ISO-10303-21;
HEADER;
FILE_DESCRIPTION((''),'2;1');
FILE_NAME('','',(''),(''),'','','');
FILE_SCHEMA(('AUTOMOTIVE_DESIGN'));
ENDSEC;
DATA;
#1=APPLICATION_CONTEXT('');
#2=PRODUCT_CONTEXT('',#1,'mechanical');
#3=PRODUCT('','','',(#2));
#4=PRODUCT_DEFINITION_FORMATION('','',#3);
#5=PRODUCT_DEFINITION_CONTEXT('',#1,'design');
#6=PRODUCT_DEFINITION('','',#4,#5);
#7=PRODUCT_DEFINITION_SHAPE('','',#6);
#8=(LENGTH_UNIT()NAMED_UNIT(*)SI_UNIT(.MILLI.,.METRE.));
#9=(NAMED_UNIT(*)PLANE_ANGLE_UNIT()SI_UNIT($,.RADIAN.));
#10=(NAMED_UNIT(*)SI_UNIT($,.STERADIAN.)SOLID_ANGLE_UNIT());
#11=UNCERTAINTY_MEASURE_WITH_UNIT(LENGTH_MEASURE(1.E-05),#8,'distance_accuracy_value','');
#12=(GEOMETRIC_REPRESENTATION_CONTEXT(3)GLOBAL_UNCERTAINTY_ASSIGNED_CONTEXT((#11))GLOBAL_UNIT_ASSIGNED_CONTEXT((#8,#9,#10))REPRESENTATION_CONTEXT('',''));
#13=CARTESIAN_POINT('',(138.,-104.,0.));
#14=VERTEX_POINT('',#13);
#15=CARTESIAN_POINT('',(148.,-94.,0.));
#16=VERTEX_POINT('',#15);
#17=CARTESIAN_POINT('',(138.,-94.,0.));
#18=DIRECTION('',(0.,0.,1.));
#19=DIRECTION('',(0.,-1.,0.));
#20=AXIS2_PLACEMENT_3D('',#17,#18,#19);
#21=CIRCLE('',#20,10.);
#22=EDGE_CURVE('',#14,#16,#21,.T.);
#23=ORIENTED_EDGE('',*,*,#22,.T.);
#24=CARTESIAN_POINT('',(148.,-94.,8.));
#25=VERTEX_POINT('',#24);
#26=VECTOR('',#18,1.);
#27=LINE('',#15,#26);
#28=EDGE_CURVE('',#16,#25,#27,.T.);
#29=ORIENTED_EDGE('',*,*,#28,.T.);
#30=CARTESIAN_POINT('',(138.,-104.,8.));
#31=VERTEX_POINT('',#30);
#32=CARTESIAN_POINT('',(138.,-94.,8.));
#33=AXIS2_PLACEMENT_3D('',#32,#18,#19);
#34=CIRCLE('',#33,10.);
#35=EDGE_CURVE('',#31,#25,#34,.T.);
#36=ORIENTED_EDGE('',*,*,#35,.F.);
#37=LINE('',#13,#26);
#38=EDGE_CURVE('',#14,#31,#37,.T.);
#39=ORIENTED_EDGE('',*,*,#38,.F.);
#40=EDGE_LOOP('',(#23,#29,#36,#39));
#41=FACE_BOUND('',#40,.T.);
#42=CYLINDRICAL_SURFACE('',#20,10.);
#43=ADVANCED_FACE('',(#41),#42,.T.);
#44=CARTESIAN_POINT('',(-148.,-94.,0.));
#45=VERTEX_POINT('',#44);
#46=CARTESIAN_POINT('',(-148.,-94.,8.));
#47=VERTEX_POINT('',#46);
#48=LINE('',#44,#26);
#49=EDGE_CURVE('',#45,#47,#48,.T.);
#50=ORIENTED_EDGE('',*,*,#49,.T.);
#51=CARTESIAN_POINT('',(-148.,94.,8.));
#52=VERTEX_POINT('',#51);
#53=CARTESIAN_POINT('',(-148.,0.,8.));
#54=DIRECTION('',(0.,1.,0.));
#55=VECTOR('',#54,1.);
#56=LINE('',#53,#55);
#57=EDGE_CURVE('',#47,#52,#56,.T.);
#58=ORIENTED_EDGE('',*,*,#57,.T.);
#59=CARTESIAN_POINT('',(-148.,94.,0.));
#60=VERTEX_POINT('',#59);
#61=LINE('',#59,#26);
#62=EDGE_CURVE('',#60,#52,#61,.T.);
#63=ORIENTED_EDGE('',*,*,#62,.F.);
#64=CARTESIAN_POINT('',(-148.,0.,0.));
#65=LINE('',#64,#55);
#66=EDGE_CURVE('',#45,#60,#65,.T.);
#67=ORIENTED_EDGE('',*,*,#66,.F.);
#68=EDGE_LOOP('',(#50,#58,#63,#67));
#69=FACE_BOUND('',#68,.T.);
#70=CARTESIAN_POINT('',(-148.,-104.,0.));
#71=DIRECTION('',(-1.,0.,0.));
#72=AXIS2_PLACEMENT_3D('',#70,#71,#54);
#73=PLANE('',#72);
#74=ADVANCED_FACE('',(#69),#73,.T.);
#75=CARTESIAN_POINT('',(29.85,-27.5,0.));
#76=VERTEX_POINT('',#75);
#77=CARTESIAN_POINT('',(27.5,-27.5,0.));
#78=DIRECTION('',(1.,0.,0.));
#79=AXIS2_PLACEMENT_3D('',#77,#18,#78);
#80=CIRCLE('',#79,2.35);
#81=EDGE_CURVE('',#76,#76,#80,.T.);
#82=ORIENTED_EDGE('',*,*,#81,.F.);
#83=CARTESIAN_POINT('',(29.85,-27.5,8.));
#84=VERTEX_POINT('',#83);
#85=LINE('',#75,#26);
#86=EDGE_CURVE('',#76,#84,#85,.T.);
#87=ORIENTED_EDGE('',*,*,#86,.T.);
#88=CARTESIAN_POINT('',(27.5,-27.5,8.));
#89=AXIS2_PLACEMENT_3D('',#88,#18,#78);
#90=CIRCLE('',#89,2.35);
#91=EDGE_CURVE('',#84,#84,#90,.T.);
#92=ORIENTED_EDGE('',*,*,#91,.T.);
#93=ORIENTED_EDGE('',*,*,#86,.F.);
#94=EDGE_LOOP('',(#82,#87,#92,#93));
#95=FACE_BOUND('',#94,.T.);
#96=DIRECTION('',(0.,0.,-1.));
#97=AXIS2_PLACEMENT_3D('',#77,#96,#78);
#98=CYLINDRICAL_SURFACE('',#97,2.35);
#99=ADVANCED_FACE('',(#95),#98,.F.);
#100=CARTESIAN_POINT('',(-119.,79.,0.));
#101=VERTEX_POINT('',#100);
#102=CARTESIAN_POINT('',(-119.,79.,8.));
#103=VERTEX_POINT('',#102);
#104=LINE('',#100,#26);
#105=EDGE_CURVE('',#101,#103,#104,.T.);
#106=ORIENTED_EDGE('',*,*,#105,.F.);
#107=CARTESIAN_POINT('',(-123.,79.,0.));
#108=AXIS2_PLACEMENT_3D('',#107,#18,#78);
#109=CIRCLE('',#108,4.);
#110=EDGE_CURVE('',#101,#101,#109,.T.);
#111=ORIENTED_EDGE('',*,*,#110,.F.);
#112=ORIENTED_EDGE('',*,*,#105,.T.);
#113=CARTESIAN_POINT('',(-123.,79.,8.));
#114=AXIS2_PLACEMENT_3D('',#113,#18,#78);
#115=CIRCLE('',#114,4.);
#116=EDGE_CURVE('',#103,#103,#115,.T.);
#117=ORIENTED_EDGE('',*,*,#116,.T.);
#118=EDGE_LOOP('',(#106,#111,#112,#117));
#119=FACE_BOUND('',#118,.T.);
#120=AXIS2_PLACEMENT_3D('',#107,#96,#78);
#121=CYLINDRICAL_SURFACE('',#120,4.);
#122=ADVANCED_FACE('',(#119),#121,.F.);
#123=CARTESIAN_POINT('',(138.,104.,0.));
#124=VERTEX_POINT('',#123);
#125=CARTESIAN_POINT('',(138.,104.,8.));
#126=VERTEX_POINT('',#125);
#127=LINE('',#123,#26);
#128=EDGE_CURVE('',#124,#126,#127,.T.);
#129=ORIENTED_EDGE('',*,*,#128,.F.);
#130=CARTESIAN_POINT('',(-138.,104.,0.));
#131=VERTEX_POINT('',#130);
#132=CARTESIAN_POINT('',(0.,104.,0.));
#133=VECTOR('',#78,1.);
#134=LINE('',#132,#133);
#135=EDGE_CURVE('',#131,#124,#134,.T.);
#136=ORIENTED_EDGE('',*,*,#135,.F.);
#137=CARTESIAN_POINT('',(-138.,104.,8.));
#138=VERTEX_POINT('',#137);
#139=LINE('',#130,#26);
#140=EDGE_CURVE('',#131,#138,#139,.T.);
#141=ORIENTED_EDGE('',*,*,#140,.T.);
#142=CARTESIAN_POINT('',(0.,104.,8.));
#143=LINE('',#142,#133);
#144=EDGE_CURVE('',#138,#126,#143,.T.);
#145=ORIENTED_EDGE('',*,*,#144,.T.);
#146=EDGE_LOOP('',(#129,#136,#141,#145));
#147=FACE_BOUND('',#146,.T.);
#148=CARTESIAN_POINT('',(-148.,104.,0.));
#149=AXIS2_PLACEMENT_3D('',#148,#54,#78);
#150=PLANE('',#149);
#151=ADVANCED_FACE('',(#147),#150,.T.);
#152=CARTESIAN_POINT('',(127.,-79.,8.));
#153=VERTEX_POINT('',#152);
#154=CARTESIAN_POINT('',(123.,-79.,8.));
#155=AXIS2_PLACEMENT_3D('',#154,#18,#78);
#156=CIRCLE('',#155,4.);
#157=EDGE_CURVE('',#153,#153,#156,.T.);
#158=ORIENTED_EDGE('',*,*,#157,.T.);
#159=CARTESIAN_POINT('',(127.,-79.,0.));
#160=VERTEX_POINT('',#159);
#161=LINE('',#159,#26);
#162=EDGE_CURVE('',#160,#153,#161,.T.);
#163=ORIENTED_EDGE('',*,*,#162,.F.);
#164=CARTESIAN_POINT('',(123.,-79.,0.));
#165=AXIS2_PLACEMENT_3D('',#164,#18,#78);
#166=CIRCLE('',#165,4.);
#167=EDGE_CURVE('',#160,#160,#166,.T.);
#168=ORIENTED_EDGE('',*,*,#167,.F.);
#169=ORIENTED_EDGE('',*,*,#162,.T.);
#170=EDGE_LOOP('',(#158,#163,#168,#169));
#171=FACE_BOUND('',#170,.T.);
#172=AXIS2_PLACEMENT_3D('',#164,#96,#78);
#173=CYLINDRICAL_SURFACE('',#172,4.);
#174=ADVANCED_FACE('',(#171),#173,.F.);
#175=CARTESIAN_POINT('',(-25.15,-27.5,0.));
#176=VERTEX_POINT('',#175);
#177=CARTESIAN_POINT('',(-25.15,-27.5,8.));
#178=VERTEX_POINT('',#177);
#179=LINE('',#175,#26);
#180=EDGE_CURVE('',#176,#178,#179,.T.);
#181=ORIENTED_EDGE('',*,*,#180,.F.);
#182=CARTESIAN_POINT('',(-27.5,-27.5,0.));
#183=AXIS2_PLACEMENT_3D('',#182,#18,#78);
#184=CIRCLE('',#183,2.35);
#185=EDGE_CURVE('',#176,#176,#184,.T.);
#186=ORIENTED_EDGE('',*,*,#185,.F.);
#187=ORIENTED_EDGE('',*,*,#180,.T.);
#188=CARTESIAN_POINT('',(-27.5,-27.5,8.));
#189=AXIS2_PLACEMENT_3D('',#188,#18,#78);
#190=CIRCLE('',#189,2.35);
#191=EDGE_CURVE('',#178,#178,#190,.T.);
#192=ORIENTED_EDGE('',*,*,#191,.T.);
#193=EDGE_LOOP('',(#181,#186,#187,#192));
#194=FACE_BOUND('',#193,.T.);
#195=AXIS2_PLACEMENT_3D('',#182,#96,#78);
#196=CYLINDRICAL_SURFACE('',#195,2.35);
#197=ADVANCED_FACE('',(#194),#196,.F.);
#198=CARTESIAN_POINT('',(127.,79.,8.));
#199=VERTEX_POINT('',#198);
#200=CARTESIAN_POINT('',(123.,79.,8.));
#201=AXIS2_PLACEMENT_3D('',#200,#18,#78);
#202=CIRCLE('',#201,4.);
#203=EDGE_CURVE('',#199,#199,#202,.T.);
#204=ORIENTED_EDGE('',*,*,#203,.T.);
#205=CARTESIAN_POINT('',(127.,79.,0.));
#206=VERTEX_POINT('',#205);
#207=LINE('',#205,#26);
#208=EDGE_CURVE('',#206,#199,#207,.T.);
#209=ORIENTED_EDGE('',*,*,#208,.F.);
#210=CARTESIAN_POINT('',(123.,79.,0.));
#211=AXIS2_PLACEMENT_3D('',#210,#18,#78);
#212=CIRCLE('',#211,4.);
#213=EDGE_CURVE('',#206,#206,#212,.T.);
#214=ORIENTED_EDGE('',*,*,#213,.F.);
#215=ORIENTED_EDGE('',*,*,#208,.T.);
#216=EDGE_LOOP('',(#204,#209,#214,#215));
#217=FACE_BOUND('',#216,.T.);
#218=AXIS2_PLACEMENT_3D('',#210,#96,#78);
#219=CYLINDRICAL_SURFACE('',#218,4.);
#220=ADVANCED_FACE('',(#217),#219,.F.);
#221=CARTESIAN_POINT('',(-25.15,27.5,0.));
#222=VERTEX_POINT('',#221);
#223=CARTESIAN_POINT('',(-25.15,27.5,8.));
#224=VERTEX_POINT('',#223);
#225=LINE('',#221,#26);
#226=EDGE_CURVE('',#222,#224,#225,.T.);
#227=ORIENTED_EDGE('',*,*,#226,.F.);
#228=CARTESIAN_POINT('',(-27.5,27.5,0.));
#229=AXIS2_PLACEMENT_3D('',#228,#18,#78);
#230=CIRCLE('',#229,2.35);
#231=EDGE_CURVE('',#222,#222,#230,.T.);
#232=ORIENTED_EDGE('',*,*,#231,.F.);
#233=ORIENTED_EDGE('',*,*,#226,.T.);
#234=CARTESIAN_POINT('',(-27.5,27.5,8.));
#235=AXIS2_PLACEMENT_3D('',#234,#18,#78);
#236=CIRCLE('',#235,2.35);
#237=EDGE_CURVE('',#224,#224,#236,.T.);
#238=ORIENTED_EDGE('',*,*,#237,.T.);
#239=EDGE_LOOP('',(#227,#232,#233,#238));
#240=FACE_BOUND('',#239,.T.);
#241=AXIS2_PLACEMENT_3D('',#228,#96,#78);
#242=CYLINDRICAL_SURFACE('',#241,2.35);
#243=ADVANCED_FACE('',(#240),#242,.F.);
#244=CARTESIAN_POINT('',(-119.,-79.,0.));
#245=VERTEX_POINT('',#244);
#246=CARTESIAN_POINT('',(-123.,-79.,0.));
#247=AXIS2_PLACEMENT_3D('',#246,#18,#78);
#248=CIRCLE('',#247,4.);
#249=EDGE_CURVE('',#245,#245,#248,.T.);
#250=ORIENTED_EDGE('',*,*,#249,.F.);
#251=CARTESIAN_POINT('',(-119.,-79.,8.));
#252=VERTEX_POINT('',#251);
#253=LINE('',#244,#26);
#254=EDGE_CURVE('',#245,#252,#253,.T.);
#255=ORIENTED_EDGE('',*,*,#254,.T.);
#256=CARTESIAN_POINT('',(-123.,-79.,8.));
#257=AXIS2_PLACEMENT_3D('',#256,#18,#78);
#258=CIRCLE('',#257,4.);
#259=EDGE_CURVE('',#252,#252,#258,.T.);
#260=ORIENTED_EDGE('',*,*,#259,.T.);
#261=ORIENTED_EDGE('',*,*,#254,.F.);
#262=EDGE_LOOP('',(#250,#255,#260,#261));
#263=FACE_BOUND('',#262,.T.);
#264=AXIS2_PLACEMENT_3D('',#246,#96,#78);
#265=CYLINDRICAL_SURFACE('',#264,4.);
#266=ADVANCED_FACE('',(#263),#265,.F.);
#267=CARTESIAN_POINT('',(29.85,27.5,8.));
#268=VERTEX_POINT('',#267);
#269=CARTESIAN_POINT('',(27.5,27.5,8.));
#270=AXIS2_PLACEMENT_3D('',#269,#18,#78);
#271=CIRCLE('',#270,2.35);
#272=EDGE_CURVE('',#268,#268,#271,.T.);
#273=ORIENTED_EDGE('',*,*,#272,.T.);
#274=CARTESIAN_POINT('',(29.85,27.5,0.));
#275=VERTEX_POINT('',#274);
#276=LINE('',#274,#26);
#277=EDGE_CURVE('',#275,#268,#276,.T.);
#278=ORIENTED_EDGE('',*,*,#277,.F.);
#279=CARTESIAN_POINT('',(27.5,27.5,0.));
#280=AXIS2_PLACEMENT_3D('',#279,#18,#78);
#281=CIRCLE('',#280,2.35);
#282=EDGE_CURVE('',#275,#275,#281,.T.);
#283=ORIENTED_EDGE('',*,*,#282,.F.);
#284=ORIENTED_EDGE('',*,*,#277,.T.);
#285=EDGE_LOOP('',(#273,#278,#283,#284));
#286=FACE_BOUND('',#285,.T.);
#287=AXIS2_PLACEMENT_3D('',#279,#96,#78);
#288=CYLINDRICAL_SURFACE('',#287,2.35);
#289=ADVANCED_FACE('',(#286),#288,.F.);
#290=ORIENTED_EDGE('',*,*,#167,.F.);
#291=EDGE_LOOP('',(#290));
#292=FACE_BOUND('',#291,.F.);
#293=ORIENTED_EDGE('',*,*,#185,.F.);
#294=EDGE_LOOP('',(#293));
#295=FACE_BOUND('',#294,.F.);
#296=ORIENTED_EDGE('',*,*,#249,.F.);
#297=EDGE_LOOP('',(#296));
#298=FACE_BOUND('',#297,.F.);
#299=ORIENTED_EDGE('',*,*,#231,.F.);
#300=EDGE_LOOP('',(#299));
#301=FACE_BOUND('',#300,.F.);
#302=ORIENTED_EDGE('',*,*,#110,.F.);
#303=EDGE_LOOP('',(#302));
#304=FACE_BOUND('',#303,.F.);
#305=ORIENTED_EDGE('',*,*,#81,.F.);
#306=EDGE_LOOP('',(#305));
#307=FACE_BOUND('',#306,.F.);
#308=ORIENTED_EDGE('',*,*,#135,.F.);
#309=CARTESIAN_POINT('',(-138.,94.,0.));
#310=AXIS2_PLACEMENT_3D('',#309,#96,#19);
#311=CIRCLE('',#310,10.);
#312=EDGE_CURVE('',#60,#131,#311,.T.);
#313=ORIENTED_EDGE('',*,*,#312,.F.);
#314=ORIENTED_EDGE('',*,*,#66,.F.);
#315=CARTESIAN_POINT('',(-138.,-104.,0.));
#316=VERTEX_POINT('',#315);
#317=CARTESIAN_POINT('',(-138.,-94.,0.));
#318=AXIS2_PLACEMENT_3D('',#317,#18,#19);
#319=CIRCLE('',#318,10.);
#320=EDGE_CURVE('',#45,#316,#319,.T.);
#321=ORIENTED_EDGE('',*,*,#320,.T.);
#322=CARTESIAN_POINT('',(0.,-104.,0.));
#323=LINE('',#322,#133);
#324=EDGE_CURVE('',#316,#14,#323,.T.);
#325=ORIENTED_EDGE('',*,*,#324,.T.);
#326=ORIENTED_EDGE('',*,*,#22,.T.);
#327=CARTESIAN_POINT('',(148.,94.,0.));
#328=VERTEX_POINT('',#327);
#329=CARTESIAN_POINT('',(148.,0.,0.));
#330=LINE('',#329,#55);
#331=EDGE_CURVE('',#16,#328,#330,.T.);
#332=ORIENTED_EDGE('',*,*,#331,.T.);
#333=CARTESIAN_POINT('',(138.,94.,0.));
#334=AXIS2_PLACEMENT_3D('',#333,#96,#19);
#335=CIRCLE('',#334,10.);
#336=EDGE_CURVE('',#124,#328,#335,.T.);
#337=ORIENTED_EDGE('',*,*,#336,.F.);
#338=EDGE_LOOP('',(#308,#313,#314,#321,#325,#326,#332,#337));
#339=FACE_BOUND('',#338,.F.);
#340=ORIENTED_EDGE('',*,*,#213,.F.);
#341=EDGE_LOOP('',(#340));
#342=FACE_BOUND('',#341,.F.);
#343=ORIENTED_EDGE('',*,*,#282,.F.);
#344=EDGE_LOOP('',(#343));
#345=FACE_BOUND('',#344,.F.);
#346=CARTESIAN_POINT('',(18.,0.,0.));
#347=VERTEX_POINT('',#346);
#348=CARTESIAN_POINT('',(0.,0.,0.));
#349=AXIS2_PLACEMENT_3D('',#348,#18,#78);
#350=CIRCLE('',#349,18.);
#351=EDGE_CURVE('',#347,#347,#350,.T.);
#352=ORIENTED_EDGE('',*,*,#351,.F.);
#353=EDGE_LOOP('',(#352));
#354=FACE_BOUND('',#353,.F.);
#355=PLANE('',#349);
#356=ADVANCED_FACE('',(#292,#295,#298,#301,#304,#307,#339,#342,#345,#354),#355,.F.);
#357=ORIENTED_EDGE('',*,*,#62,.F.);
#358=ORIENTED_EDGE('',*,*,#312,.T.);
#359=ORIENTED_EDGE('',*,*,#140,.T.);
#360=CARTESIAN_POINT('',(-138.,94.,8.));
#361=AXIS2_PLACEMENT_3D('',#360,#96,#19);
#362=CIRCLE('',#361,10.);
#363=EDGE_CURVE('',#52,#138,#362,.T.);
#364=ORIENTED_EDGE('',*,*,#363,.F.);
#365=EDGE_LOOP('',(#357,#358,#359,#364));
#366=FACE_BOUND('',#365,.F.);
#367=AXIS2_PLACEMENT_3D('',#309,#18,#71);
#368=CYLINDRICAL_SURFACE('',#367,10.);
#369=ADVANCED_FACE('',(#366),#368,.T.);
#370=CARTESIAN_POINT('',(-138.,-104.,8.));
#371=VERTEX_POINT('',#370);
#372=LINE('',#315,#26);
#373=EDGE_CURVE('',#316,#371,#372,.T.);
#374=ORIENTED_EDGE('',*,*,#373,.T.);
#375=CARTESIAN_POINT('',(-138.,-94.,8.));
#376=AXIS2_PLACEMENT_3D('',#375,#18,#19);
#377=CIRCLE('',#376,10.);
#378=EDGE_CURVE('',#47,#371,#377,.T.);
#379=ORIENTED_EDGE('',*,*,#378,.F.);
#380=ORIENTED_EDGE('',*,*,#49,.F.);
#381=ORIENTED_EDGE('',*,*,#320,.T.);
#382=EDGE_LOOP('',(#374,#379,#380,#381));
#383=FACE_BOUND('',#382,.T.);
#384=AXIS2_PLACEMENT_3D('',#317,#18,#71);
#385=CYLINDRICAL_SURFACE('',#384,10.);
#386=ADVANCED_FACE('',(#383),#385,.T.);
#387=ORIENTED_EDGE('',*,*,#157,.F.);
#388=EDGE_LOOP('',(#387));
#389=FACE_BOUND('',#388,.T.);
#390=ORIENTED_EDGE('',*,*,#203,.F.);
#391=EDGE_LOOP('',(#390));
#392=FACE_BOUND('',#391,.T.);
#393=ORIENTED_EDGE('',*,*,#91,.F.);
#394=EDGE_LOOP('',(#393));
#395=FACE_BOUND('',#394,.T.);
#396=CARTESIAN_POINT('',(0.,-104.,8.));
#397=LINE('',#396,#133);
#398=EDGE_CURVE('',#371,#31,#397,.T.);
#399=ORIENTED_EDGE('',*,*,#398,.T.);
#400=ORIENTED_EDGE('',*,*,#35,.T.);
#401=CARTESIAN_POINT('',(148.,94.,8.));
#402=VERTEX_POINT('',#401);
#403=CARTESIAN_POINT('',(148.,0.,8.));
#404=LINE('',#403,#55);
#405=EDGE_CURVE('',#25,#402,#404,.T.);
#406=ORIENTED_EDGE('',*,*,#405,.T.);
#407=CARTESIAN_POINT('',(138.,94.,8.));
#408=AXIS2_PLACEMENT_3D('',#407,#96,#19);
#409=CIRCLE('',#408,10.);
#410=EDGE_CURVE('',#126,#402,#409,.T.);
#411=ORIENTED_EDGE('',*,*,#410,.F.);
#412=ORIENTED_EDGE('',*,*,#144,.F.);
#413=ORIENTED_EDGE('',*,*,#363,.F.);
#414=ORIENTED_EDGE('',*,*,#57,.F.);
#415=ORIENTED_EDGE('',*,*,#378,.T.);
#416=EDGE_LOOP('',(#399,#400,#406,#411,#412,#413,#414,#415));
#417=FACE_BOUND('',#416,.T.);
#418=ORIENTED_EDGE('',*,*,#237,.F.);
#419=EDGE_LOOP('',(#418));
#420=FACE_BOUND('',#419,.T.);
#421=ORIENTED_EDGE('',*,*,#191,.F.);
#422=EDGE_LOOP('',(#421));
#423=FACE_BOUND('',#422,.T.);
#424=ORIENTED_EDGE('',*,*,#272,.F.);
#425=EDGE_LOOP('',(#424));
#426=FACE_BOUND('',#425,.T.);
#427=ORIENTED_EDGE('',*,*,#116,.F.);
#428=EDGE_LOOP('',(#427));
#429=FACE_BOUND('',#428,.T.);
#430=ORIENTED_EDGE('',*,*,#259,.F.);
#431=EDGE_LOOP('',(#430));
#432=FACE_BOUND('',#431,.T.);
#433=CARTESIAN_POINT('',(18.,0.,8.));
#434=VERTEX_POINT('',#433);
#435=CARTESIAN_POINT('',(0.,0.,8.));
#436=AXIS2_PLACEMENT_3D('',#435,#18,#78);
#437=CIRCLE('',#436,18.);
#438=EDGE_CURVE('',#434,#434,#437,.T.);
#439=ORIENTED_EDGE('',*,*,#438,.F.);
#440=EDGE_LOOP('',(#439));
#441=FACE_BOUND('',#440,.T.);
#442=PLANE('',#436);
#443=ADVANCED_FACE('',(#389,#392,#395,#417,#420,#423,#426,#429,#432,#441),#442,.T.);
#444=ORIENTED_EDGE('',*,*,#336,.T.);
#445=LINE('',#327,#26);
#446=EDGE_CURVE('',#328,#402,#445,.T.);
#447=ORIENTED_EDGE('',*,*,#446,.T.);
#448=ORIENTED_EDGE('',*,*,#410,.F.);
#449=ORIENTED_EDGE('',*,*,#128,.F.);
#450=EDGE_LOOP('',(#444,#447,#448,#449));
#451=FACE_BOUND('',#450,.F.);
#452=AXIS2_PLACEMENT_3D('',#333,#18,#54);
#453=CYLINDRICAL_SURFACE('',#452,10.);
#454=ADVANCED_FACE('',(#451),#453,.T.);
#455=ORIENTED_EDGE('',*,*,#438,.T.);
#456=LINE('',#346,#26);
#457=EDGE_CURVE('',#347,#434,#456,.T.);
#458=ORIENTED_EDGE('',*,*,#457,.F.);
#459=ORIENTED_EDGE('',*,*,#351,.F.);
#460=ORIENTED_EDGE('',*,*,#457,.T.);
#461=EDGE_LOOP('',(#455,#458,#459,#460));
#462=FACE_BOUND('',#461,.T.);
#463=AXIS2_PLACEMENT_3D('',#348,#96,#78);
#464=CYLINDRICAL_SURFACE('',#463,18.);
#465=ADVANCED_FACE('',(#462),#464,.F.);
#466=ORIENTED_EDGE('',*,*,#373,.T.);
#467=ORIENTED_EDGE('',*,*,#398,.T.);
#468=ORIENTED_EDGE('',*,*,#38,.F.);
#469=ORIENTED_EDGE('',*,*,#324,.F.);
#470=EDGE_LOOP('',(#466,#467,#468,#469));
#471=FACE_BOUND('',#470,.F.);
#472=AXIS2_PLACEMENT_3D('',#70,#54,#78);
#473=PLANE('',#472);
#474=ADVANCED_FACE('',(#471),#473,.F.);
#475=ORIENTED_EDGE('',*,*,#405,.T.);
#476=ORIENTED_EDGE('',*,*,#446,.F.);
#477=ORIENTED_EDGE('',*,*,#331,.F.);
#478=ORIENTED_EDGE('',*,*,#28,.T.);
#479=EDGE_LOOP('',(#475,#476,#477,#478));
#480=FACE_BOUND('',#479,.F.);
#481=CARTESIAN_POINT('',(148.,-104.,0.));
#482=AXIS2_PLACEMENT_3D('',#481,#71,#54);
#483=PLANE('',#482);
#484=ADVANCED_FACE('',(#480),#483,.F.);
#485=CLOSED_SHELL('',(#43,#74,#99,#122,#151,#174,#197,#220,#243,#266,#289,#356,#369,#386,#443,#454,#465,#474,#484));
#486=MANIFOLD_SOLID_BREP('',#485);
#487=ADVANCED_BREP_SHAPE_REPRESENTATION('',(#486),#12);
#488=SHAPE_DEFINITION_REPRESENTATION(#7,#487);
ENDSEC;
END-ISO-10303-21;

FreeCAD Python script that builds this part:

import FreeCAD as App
import Part
import Sketcher
from FreeCAD import Vector


def edges_at(feature, points):
    """Names of the edges that pass closest to the given points."""
    edges = feature.Shape.Edges
    near = lambda p: min(range(len(edges)), key=lambda i: edges[i].distToShape(Part.Vertex(*p))[0])
    return sorted({f"Edge{near(p) + 1}" for p in points})

doc = App.newDocument("Part")
body = doc.addObject("PartDesign::Body", "Body")

# Sketch on XY plane
sketch1 = body.newObject("Sketcher::SketchObject", "Sketch")
sketch1.AttachmentSupport = (doc.getObject("XY_Plane"), [""])
sketch1.MapMode = "FlatFace"
sketch1.addGeometry([
    Part.LineSegment(Vector(-148, 104, 0), Vector(-148, -104, 0)),  # 0
    Part.LineSegment(Vector(-148, -104, 0), Vector(148, -104, 0)),  # 1
    Part.LineSegment(Vector(148, -104, 0), Vector(148, 104, 0)),  # 2
    Part.LineSegment(Vector(148, 104, 0), Vector(-148, 104, 0)),  # 3
    Part.Circle(Vector(-123, -79, 0), Vector(0, 0, 1), 4),  # 4
    Part.Circle(Vector(-27.5, -27.5, 0), Vector(0, 0, 1), 2.35),  # 5
    Part.Circle(Vector(123, -79, 0), Vector(0, 0, 1), 4),  # 6
    Part.Circle(Vector(27.5, -27.5, 0), Vector(0, 0, 1), 2.35),  # 7
    Part.Circle(Vector(-27.5, 27.5, 0), Vector(0, 0, 1), 2.35),  # 8
    Part.Circle(Vector(-123, 79, 0), Vector(0, 0, 1), 4),  # 9
    Part.Circle(Vector(0, 0, 0), Vector(0, 0, 1), 18),  # 10
    Part.Circle(Vector(27.5, 27.5, 0), Vector(0, 0, 1), 2.35),  # 11
    Part.Circle(Vector(123, 79, 0), Vector(0, 0, 1), 4),  # 12
], False)
sketch1.addConstraint([
    Sketcher.Constraint("Coincident", 0, 2, 1, 1),
    Sketcher.Constraint("Coincident", 1, 2, 2, 1),
    Sketcher.Constraint("Coincident", 2, 2, 3, 1),
    Sketcher.Constraint("Coincident", 3, 2, 0, 1),
    Sketcher.Constraint("Vertical", 0),
    Sketcher.Constraint("Horizontal", 1),
    Sketcher.Constraint("Vertical", 2),
    Sketcher.Constraint("Horizontal", 3),
    Sketcher.Constraint("Coincident", 10, 3, -1, 1),
    Sketcher.Constraint("Equal", 4, 6),
    Sketcher.Constraint("Equal", 5, 7),
    Sketcher.Constraint("Equal", 7, 8),
    Sketcher.Constraint("Equal", 6, 9),
    Sketcher.Constraint("Equal", 8, 11),
    Sketcher.Constraint("Equal", 9, 12),
    Sketcher.Constraint("Symmetric", 7, 3, 8, 3, -1, 1),
    Sketcher.Constraint("Symmetric", 6, 3, 9, 3, -1, 1),
    Sketcher.Constraint("Symmetric", 5, 3, 11, 3, -1, 1),
    Sketcher.Constraint("Symmetric", 4, 3, 12, 3, -1, 1),
    Sketcher.Constraint("Symmetric", 0, 2, 2, 2, -1, 1),
    Sketcher.Constraint("Symmetric", 4, 3, 6, 3, -2),
    Sketcher.Constraint("Symmetric", 5, 3, 7, 3, -2),
    Sketcher.Constraint("Diameter", 4, 8.0),
    Sketcher.Constraint("Diameter", 10, 36.0),
    Sketcher.Constraint("Diameter", 5, 4.7),
    Sketcher.Constraint("DistanceX", 1, 1, 1, 2, 296.0),
    Sketcher.Constraint("DistanceY", 0, 2, 0, 1, 208.0),
    Sketcher.Constraint("DistanceX", 4, 3, -1, 1, 123.0),
    Sketcher.Constraint("DistanceY", 4, 3, -1, 1, 79.0),
    Sketcher.Constraint("DistanceX", 5, 3, 7, 3, 55.0),
    Sketcher.Constraint("DistanceY", 5, 3, 8, 3, 55.0),
])
pad1 = body.newObject("PartDesign::Pad", "Pad")
pad1.Profile = sketch1
pad1.Length = 8
doc.recompute()

fillet = body.newObject("PartDesign::Fillet", "Fillet")
fillet.Base = (pad1, edges_at(pad1, [
    (-148, 104, 4),
    (-148, -104, 4),
    (148, -104, 4),
    (148, 104, 4),
]))
fillet.Radius = 10

doc.recompute()
